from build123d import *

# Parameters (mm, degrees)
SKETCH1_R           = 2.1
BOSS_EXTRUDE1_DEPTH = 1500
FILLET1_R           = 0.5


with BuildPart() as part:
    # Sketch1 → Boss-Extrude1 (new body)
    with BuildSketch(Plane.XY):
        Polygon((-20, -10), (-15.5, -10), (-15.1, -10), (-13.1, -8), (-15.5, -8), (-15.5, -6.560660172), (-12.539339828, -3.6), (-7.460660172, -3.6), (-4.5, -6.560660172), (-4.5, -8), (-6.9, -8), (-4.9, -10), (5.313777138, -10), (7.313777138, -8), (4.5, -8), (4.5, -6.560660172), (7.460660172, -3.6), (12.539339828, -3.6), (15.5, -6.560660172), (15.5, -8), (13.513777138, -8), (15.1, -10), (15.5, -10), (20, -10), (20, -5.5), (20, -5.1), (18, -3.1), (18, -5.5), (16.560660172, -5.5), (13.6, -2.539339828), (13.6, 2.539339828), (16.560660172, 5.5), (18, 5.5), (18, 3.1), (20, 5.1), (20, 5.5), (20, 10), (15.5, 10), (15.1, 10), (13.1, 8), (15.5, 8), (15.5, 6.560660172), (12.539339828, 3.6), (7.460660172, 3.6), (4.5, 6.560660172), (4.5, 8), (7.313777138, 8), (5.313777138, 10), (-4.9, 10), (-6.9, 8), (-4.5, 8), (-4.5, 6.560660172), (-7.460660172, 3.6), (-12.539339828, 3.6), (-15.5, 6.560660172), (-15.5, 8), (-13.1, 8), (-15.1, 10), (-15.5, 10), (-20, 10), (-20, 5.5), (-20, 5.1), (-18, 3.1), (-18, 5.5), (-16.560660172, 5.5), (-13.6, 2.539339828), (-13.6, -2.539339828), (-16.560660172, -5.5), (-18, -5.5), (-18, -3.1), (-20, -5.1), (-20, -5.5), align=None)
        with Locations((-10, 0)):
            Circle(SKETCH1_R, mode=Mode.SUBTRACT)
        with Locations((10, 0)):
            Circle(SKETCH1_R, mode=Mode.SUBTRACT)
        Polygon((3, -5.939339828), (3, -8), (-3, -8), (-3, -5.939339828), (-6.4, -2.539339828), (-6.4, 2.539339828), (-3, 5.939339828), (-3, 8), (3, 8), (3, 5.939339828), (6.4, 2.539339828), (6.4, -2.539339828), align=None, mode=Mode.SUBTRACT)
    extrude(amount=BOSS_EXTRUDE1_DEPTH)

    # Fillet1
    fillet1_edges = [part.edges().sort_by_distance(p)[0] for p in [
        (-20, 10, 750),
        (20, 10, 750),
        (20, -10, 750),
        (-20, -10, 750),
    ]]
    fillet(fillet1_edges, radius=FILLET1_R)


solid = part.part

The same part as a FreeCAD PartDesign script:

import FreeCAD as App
import Part
import Sketcher
from FreeCAD import Vector


def edges_at(feature, points):
    """Names of the edges that pass closest to the given points."""
    edges = feature.Shape.Edges
    near = lambda p: min(range(len(edges)), key=lambda i: edges[i].distToShape(Part.Vertex(*p))[0])
    return sorted({f"Edge{near(p) + 1}" for p in points})


def add_polygon(sketch, points):
    """Adds a closed chain of lines whose ends are joined by coincident constraints."""
    first, n = sketch.GeometryCount, len(points)
    for a, b in zip(points, points[1:] + points[:1]):
        sketch.addGeometry(Part.LineSegment(App.Vector(*a, 0), App.Vector(*b, 0)), False)
    for i in range(n):
        sketch.addConstraint(Sketcher.Constraint("Coincident", first + i, 2, first + (i + 1) % n, 1))

doc = App.newDocument("Part")
body = doc.addObject("PartDesign::Body", "Body")

sketch1 = doc.addObject("Sketcher::SketchObject", "Sketch")
body.addObject(sketch1)
sketch1.AttachmentSupport = (doc.XY_Plane, [""])
sketch1.MapMode = "FlatFace"
add_polygon(sketch1, [(-20, -10), (-15.1, -10), (-13.1, -8), (-15.5, -8), (-15.5, -6.6), (-12.5, -3.6), (-7.5, -3.6), (-4.5, -6.6), (-4.5, -8), (-6.9, -8), (-4.9, -10), (5.3, -10), (7.3, -8), (4.5, -8), (4.5, -6.6), (7.5, -3.6), (12.5, -3.6), (15.5, -6.6), (15.5, -8), (13.5, -8), (15.1, -10), (20, -10), (20, -5.1), (18, -3.1), (18, -5.5), (16.6, -5.5), (13.6, -2.5), (13.6, 2.5), (16.6, 5.5), (18, 5.5), (18, 3.1), (20, 5.1), (20, 10), (15.1, 10), (13.1, 8), (15.5, 8), (15.5, 6.6), (12.5, 3.6), (7.5, 3.6), (4.5, 6.6), (4.5, 8), (7.3, 8), (5.3, 10), (-4.9, 10), (-6.9, 8), (-4.5, 8), (-4.5, 6.6), (-7.5, 3.6), (-12.5, 3.6), (-15.5, 6.6), (-15.5, 8), (-13.1, 8), (-15.1, 10), (-20, 10), (-20, 5.1), (-18, 3.1), (-18, 5.5), (-16.6, 5.5), (-13.6, 2.5), (-13.6, -2.5), (-16.6, -5.5), (-18, -5.5), (-18, -3.1), (-20, -5.1)])
sketch1.addGeometry(Part.Circle(Vector(-10, 0, 0), Vector(0, 0, 1), 2.1), False)
add_polygon(sketch1, [(6.4, -2.5), (3, -5.9), (3, -8), (-3, -8), (-3, -5.9), (-6.4, -2.5), (-6.4, 2.5), (-3, 5.9), (-3, 8), (3, 8), (3, 5.9), (6.4, 2.5)])
sketch1.addGeometry(Part.Circle(Vector(10, 0, 0), Vector(0, 0, 1), 2.1), False)
sketch1.addConstraint(Sketcher.Constraint("Horizontal", 0))
sketch1.addConstraint(Sketcher.Constraint("Horizontal", 2))
sketch1.addConstraint(Sketcher.Constraint("Vertical", 3))
sketch1.addConstraint(Sketcher.Constraint("Horizontal", 5))
sketch1.addConstraint(Sketcher.Constraint("Vertical", 7))
sketch1.addConstraint(Sketcher.Constraint("Horizontal", 8))
sketch1.addConstraint(Sketcher.Constraint("Horizontal", 10))
sketch1.addConstraint(Sketcher.Constraint("Horizontal", 12))
sketch1.addConstraint(Sketcher.Constraint("Vertical", 13))
sketch1.addConstraint(Sketcher.Constraint("Horizontal", 15))
sketch1.addConstraint(Sketcher.Constraint("Vertical", 17))
sketch1.addConstraint(Sketcher.Constraint("Horizontal", 18))
sketch1.addConstraint(Sketcher.Constraint("Horizontal", 20))
sketch1.addConstraint(Sketcher.Constraint("Vertical", 21))
sketch1.addConstraint(Sketcher.Constraint("Vertical", 23))
sketch1.addConstraint(Sketcher.Constraint("Horizontal", 24))
sketch1.addConstraint(Sketcher.Constraint("Vertical", 26))
sketch1.addConstraint(Sketcher.Constraint("Horizontal", 28))
sketch1.addConstraint(Sketcher.Constraint("Vertical", 29))
sketch1.addConstraint(Sketcher.Constraint("Vertical", 31))
sketch1.addConstraint(Sketcher.Constraint("Horizontal", 32))
sketch1.addConstraint(Sketcher.Constraint("Horizontal", 34))
sketch1.addConstraint(Sketcher.Constraint("Vertical", 35))
sketch1.addConstraint(Sketcher.Constraint("Horizontal", 37))
sketch1.addConstraint(Sketcher.Constraint("Vertical", 39))
sketch1.addConstraint(Sketcher.Constraint("Horizontal", 40))
sketch1.addConstraint(Sketcher.Constraint("Horizontal", 42))
sketch1.addConstraint(Sketcher.Constraint("Horizontal", 44))
sketch1.addConstraint(Sketcher.Constraint("Vertical", 45))
sketch1.addConstraint(Sketcher.Constraint("Horizontal", 47))
sketch1.addConstraint(Sketcher.Constraint("Vertical", 49))
sketch1.addConstraint(Sketcher.Constraint("Horizontal", 50))
sketch1.addConstraint(Sketcher.Constraint("Horizontal", 52))
sketch1.addConstraint(Sketcher.Constraint("Vertical", 53))
sketch1.addConstraint(Sketcher.Constraint("Vertical", 55))
sketch1.addConstraint(Sketcher.Constraint("Horizontal", 56))
sketch1.addConstraint(Sketcher.Constraint("Vertical", 58))
sketch1.addConstraint(Sketcher.Constraint("Horizontal", 60))
sketch1.addConstraint(Sketcher.Constraint("Vertical", 61))
sketch1.addConstraint(Sketcher.Constraint("Vertical", 63))
sketch1.addConstraint(Sketcher.Constraint("Vertical", 66))
sketch1.addConstraint(Sketcher.Constraint("Horizontal", 67))
sketch1.addConstraint(Sketcher.Constraint("Vertical", 68))
sketch1.addConstraint(Sketcher.Constraint("Vertical", 70))
sketch1.addConstraint(Sketcher.Constraint("Vertical", 72))
sketch1.addConstraint(Sketcher.Constraint("Horizontal", 73))
sketch1.addConstraint(Sketcher.Constraint("Vertical", 74))
sketch1.addConstraint(Sketcher.Constraint("Vertical", 76))
sketch1.addConstraint(Sketcher.Constraint("Equal", 64, 77))
sketch1.addConstraint(Sketcher.Constraint("Symmetric", 64, 3, 77, 3, -1, 1))
sketch1.addConstraint(Sketcher.Constraint("Symmetric", 0, 2, 32, 2, -1, 1))
sketch1.addConstraint(Sketcher.Constraint("Symmetric", 1, 2, 33, 2, -1, 1))
sketch1.addConstraint(Sketcher.Constraint("Symmetric", 3, 2, 35, 2, -1, 1))
sketch1.addConstraint(Sketcher.Constraint("Symmetric", 4, 2, 36, 2, -1, 1))
sketch1.addConstraint(Sketcher.Constraint("Symmetric", 6, 2, 38, 2, -1, 1))
sketch1.addConstraint(Sketcher.Constraint("Symmetric", 12, 2, 44, 2, -1, 1))
sketch1.addConstraint(Sketcher.Constraint("Symmetric", 14, 2, 46, 2, -1, 1))
sketch1.addConstraint(Sketcher.Constraint("Symmetric", 16, 2, 48, 2, -1, 1))
sketch1.addConstraint(Sketcher.Constraint("Symmetric", 19, 2, 51, 2, -1, 1))
sketch1.addConstraint(Sketcher.Constraint("Symmetric", 21, 2, 53, 2, -1, 1))
sketch1.addConstraint(Sketcher.Constraint("Symmetric", 22, 2, 54, 2, -1, 1))
sketch1.addConstraint(Sketcher.Constraint("Symmetric", 24, 2, 56, 2, -1, 1))
sketch1.addConstraint(Sketcher.Constraint("Symmetric", 25, 2, 57, 2, -1, 1))
sketch1.addConstraint(Sketcher.Constraint("Symmetric", 27, 2, 59, 2, -1, 1))
sketch1.addConstraint(Sketcher.Constraint("Symmetric", 29, 2, 61, 2, -1, 1))
sketch1.addConstraint(Sketcher.Constraint("Symmetric", 30, 2, 62, 2, -1, 1))
sketch1.addConstraint(Sketcher.Constraint("Symmetric", 65, 2, 71, 2, -1, 1))
sketch1.addConstraint(Sketcher.Constraint("Symmetric", 67, 2, 73, 2, -1, 1))
sketch1.addConstraint(Sketcher.Constraint("Symmetric", 69, 2, 75, 2, -1, 1))
sketch1.addConstraint(Sketcher.Constraint("Symmetric", 7, 2, 12, 2, -2))
sketch1.addConstraint(Sketcher.Constraint("Symmetric", 5, 2, 14, 2, -2))
sketch1.addConstraint(Sketcher.Constraint("Symmetric", 3, 2, 16, 2, -2))
sketch1.addConstraint(Sketcher.Constraint("Symmetric", 0, 2, 19, 2, -2))
sketch1.addConstraint(Sketcher.Constraint("Symmetric", 33, 2, 50, 2, -2))
sketch1.addConstraint(Sketcher.Constraint("Symmetric", 30, 2, 53, 2, -2))
sketch1.addConstraint(Sketcher.Constraint("Symmetric", 29, 2, 54, 2, -2))
sketch1.addConstraint(Sketcher.Constraint("Symmetric", 27, 2, 56, 2, -2))
sketch1.addConstraint(Sketcher.Constraint("Symmetric", 65, 2, 68, 2, -2))
sketch1.addConstraint(Sketcher.Constraint("Symmetric", 11, 2, 40, 2, -1))
sketch1.addConstraint(Sketcher.Constraint("Symmetric", 10, 2, 41, 2, -1))
sketch1.addConstraint(Sketcher.Constraint("PointOnObject", 64, 3, -1))
sketch1.addConstraint(Sketcher.Constraint("Parallel", 1, 4))
sketch1.addConstraint(Sketcher.Constraint("Perpendicular", 4, 6))
sketch1.addConstraint(Sketcher.Constraint("Parallel", 6, 9))
sketch1.addConstraint(Sketcher.Constraint("Perpendicular", 9, 11))
sketch1.addConstraint(Sketcher.Constraint("Parallel", 11, 14))
sketch1.addConstraint(Sketcher.Constraint("Perpendicular", 14, 16))
sketch1.addConstraint(Sketcher.Constraint("Parallel", 16, 22))
sketch1.addConstraint(Sketcher.Constraint("Parallel", 22, 25))
sketch1.addConstraint(Sketcher.Constraint("Perpendicular", 25, 27))
sketch1.addConstraint(Sketcher.Constraint("Parallel", 27, 30))
sketch1.addConstraint(Sketcher.Constraint("Perpendicular", 36, 38))
sketch1.addConstraint(Sketcher.Constraint("Perpendicular", 41, 43))
sketch1.addConstraint(Sketcher.Constraint("Parallel", 43, 46))
sketch1.addConstraint(Sketcher.Constraint("Perpendicular", 46, 48))
sketch1.addConstraint(Sketcher.Constraint("Perpendicular", 57, 59))
sketch1.addConstraint(Sketcher.Constraint("Parallel", 62, 65))
sketch1.addConstraint(Sketcher.Constraint("Perpendicular", 65, 69))
sketch1.addConstraint(Sketcher.Constraint("Perpendicular", 69, 71))
sketch1.addConstraint(Sketcher.Constraint("Perpendicular", 71, 75))
sketch1.addConstraint(Sketcher.Constraint("Horizontal", 3, 2, 6, 2))
sketch1.addConstraint(Sketcher.Constraint("Horizontal", 2, 2, 7, 2))
sketch1.addConstraint(Sketcher.Constraint("Horizontal", 0, 2, 9, 2))
sketch1.addConstraint(Sketcher.Constraint("Horizontal", 12, 2, 17, 2))
sketch1.addConstraint(Sketcher.Constraint("Horizontal", 18, 2, 66, 2))
sketch1.addConstraint(Sketcher.Constraint("Horizontal", 58, 2, 69, 2))
sketch1.addConstraint(Sketcher.Constraint("Vertical", 9, 2, 42, 2))
sketch1.addConstraint(Sketcher.Constraint("Equal", 2, 8))
sketch1.addConstraint(Sketcher.Constraint("Equal", 60, 3))
sketch1.addConstraint(Sketcher.Constraint("Equal", 52, 21))
sketch1.addConstraint(Sketcher.Constraint("Equal", 50, 23))
sketch1.addConstraint(Sketcher.Constraint("Equal", 47, 26))
sketch1.addConstraint(Sketcher.Constraint("Equal", 11, 22))
sketch1.addConstraint(Sketcher.Constraint("Equal", 16, 25))
sketch1.addConstraint(Sketcher.Constraint("Diameter", 64, 4.2))
sketch1.addConstraint(Sketcher.Constraint("DistanceX", 67, 2, 67, 1, 6.0))
sketch1.addConstraint(Sketcher.Constraint("DistanceX", 0, 1, 0, 2, 4.9))
sketch1.addConstraint(Sketcher.Constraint("DistanceX", 2, 2, 2, 1, 2.4))
sketch1.addConstraint(Sketcher.Constraint("DistanceX", 64, 3, -1, 1, 10.0))
sketch1.addConstraint(Sketcher.Constraint("DistanceY", 0, 2, -1, 1, 10.0))
sketch1.addConstraint(Sketcher.Constraint("DistanceY", 1, 2, -1, 1, 8.0))
sketch1.addConstraint(Sketcher.Constraint("DistanceX", -1, 1, 20, 2, 20.0))
sketch1.addConstraint(Sketcher.Constraint("DistanceY", 4, 2, -1, 1, 3.6))
sketch1.addConstraint(Sketcher.Constraint("DistanceX", 69, 2, -1, 1, 6.4))
sketch1.addConstraint(Sketcher.Constraint("DistanceX", 5, 1, 5, 2, 5.07868))
sketch1.addConstraint(Sketcher.Constraint("DistanceX", 10, 1, 10, 2, 10.213777))
sketch1.addConstraint(Sketcher.Constraint("DistanceX", 18, 2, 18, 1, 1.986223))
pad1 = doc.addObject("PartDesign::Pad", "Pad")
body.addObject(pad1)
pad1.Profile = sketch1
pad1.Length = 1500
doc.recompute()

fillet = doc.addObject("PartDesign::Fillet", "Fillet")
body.addObject(fillet)
fillet.Base = (pad1, edges_at(pad1, [
    (-20, 10, 750),
    (20, 10, 750),
    (20, -10, 750),
    (-20, -10, 750),
]))
fillet.Radius = 0.5

doc.recompute()
